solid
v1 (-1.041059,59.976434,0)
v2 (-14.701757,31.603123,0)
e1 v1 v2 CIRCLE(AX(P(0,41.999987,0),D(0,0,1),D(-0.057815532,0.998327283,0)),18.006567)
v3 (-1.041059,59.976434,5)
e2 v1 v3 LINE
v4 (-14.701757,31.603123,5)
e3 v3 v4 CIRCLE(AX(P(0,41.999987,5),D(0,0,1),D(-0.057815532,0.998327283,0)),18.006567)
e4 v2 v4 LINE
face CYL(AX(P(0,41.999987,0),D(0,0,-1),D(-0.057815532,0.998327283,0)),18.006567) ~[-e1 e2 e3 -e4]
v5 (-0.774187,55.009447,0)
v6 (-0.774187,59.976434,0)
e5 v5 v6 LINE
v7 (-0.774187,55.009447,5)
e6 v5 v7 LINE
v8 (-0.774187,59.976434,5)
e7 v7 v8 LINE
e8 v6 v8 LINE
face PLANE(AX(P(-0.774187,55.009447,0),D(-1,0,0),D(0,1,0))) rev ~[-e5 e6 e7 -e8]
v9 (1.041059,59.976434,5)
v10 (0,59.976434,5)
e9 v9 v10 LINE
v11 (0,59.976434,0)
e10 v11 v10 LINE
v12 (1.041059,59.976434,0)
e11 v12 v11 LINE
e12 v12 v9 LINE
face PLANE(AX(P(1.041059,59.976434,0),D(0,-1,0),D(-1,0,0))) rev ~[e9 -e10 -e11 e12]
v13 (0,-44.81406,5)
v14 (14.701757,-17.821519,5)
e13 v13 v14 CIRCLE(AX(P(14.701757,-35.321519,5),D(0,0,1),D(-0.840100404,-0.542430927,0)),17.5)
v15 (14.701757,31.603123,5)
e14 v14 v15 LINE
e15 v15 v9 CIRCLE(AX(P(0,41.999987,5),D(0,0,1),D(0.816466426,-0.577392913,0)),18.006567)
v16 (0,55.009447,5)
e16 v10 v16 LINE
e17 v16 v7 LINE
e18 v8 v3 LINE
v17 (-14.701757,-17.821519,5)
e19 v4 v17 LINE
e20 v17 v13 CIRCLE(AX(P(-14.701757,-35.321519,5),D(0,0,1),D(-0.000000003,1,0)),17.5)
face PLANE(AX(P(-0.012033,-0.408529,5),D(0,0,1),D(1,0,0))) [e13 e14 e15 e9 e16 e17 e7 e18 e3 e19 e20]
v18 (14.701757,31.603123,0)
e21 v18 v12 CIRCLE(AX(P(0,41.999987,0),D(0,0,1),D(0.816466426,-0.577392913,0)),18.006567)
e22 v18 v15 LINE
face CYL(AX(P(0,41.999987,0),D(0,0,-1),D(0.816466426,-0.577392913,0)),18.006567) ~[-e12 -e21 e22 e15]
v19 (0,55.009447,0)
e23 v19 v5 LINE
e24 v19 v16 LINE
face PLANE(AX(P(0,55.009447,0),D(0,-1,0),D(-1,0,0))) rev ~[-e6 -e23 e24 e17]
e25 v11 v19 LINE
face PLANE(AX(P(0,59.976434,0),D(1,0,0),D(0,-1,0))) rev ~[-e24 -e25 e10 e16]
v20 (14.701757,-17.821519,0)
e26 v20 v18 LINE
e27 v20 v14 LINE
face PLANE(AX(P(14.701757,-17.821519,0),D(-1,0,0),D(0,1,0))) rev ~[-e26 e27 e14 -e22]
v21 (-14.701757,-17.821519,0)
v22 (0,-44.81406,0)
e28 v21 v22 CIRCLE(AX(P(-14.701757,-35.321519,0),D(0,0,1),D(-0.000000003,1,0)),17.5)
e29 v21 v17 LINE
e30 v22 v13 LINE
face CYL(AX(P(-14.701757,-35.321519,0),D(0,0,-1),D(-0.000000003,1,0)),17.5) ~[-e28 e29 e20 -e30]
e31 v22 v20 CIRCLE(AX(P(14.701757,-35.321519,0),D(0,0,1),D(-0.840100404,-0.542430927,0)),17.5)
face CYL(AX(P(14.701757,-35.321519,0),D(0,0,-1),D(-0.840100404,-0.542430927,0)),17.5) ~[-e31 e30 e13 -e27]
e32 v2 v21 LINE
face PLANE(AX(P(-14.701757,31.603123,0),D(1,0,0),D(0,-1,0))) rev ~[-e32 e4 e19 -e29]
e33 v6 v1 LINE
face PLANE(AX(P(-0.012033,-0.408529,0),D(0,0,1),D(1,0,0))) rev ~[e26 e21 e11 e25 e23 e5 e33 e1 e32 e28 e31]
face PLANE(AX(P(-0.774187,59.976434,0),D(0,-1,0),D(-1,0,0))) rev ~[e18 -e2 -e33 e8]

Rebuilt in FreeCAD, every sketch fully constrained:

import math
import FreeCAD as App
import Part
import Sketcher
from FreeCAD import Vector

doc = App.newDocument("Part")
body = doc.addObject("PartDesign::Body", "Body")

# Sketch on XY plane
sketch1 = doc.addObject("Sketcher::SketchObject", "Sketch")
body.addObject(sketch1)
sketch1.AttachmentSupport = (doc.XY_Plane, [""])
sketch1.MapMode = "FlatFace"
sketch1.addGeometry(Part.LineSegment(Vector(14.7, -17.82, 0), Vector(14.7, 31.6, 0)), False)
sketch1.addGeometry(Part.ArcOfCircle(Part.Circle(Vector(0, 42, 0), Vector(0, 0, 1), 18.01), math.radians(-35), math.radians(87)), False)
sketch1.addGeometry(Part.LineSegment(Vector(1.04, 59.98, 0), Vector(0, 59.98, 0)), False)
sketch1.addGeometry(Part.LineSegment(Vector(0, 59.98, 0), Vector(0, 55.01, 0)), False)
sketch1.addGeometry(Part.LineSegment(Vector(0, 55.01, 0), Vector(-0.77, 55.01, 0)), False)
sketch1.addGeometry(Part.LineSegment(Vector(-0.77, 55.01, 0), Vector(-0.77, 59.98, 0)), False)
sketch1.addGeometry(Part.LineSegment(Vector(-0.77, 59.98, 0), Vector(-1.04, 59.98, 0)), False)
sketch1.addGeometry(Part.ArcOfCircle(Part.Circle(Vector(0, 42, 0), Vector(0, 0, 1), 18.01), math.radians(93), math.radians(215)), False)
sketch1.addGeometry(Part.LineSegment(Vector(-14.7, 31.6, 0), Vector(-14.7, -17.82, 0)), False)
sketch1.addGeometry(Part.ArcOfCircle(Part.Circle(Vector(-14.7, -35.32, 0), Vector(0, 0, 1), 17.5), math.radians(90), math.radians(327)), False)
sketch1.addGeometry(Part.ArcOfCircle(Part.Circle(Vector(14.7, -35.32, 0), Vector(0, 0, 1), 17.5), math.radians(-147), math.radians(90)), False)
sketch1.addConstraint(Sketcher.Constraint("Coincident", 0, 2, 1, 1))
sketch1.addConstraint(Sketcher.Constraint("Coincident", 1, 2, 2, 1))
sketch1.addConstraint(Sketcher.Constraint("Coincident", 2, 2, 3, 1))
sketch1.addConstraint(Sketcher.Constraint("Coincident", 3, 2, 4, 1))
sketch1.addConstraint(Sketcher.Constraint("Coincident", 4, 2, 5, 1))
sketch1.addConstraint(Sketcher.Constraint("Coincident", 5, 2, 6, 1))
sketch1.addConstraint(Sketcher.Constraint("Coincident", 6, 2, 7, 1))
sketch1.addConstraint(Sketcher.Constraint("Coincident", 7, 2, 8, 1))
sketch1.addConstraint(Sketcher.Constraint("Coincident", 8, 2, 9, 1))
sketch1.addConstraint(Sketcher.Constraint("Coincident", 9, 2, 10, 1))
sketch1.addConstraint(Sketcher.Constraint("Coincident", 10, 2, 0, 1))
sketch1.addConstraint(Sketcher.Constraint("Vertical", 0))
sketch1.addConstraint(Sketcher.Constraint("Horizontal", 2))
sketch1.addConstraint(Sketcher.Constraint("Vertical", 3))
sketch1.addConstraint(Sketcher.Constraint("Horizontal", 4))
sketch1.addConstraint(Sketcher.Constraint("Vertical", 5))
sketch1.addConstraint(Sketcher.Constraint("Horizontal", 6))
sketch1.addConstraint(Sketcher.Constraint("Vertical", 8))
sketch1.addConstraint(Sketcher.Constraint("Coincident", 7, 3, 1, 3))
sketch1.addConstraint(Sketcher.Constraint("Equal", 1, 7))
sketch1.addConstraint(Sketcher.Constraint("Equal", 9, 10))
sketch1.addConstraint(Sketcher.Constraint("Symmetric", 9, 3, 10, 3, -2))
sketch1.addConstraint(Sketcher.Constraint("Symmetric", 1, 2, 6, 2, -2))
sketch1.addConstraint(Sketcher.Constraint("PointOnObject", 2, 2, -2))
sketch1.addConstraint(Sketcher.Constraint("Horizontal", 0, 2, 7, 2))
sketch1.addConstraint(Sketcher.Constraint("Vertical", 10, 3, 0, 2))
sketch1.addConstraint(Sketcher.Constraint("Radius", 9, 17.5))
sketch1.addConstraint(Sketcher.Constraint("Radius", 1, 18.006567))
sketch1.addConstraint(Sketcher.Constraint("DistanceX", 2, 2, 2, 1, 1.041059))
sketch1.addConstraint(Sketcher.Constraint("DistanceX", 1, 2, 0, 2, 13.660698))
sketch1.addConstraint(Sketcher.Constraint("DistanceX", 4, 2, 4, 1, 0.774187))
sketch1.addConstraint(Sketcher.Constraint("DistanceY", 0, 1, 0, 2, 49.424642))
sketch1.addConstraint(Sketcher.Constraint("DistanceY", 3, 2, 3, 1, 4.966987))
sketch1.addConstraint(Sketcher.Constraint("DistanceY", 9, 3, -1, 1, 35.321519))
pad1 = doc.addObject("PartDesign::Pad", "Pad")
body.addObject(pad1)
pad1.Profile = sketch1
pad1.Length = 5

doc.recompute()
